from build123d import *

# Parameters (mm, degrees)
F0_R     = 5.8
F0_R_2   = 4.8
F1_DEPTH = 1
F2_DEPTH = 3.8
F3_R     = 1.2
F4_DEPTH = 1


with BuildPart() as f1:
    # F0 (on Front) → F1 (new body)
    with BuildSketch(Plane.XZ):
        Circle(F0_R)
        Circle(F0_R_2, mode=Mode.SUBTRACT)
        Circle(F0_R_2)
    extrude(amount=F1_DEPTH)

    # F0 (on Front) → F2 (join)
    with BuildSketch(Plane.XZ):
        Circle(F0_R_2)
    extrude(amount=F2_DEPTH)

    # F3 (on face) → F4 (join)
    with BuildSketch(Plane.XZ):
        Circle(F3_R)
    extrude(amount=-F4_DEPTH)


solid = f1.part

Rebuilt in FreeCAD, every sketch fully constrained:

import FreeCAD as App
import Part
import Sketcher
Q = App.Units.Quantity

doc = App.newDocument("Part")
body = doc.addObject("PartDesign::Body", "Body")

# Sketch on XZ plane
sketch1 = body.newObject("Sketcher::SketchObject", "Sketch")
sketch1.AttachmentSupport = (doc.getObject("XZ_Plane"), [""])
sketch1.MapMode = "FlatFace"
sketch1.addGeometry(Part.Circle(App.Vector(0, 0, 0), App.Vector(0, 0, 1), 5.8), False)
sketch1.addConstraint([
    Sketcher.Constraint("Coincident", 0, 3, -1, 1),
    Sketcher.Constraint("Diameter", 0, Q("11.6 mm")),
])
pad1 = body.newObject("PartDesign::Pad", "Pad")
pad1.Profile = sketch1
pad1.Length = 1

# Sketch on XZ plane
sketch2 = body.newObject("Sketcher::SketchObject", "Sketch001")
sketch2.AttachmentSupport = (doc.getObject("XZ_Plane"), [""])
sketch2.MapMode = "FlatFace"
sketch2.addGeometry(Part.Circle(App.Vector(0, 0, 0), App.Vector(0, 0, 1), 4.8), False)
sketch2.addConstraint([
    Sketcher.Constraint("Coincident", 0, 3, -1, 1),
    Sketcher.Constraint("Diameter", 0, Q("9.6 mm")),
])
pad2 = body.newObject("PartDesign::Pad", "Pad001")
pad2.Profile = sketch2
pad2.Length = 3.8

# Sketch on XZ plane
sketch3 = body.newObject("Sketcher::SketchObject", "Sketch002")
sketch3.AttachmentSupport = (doc.getObject("XZ_Plane"), [""])
sketch3.MapMode = "FlatFace"
sketch3.addGeometry(Part.Circle(App.Vector(0, 0, 0), App.Vector(0, 0, 1), 1.2), False)
sketch3.addConstraint([
    Sketcher.Constraint("Coincident", 0, 3, -1, 1),
    Sketcher.Constraint("Diameter", 0, Q("2.4 mm")),
])
pad3 = body.newObject("PartDesign::Pad", "Pad002")
pad3.Profile = sketch3
pad3.Length = 1
pad3.Reversed = True

doc.recompute()
